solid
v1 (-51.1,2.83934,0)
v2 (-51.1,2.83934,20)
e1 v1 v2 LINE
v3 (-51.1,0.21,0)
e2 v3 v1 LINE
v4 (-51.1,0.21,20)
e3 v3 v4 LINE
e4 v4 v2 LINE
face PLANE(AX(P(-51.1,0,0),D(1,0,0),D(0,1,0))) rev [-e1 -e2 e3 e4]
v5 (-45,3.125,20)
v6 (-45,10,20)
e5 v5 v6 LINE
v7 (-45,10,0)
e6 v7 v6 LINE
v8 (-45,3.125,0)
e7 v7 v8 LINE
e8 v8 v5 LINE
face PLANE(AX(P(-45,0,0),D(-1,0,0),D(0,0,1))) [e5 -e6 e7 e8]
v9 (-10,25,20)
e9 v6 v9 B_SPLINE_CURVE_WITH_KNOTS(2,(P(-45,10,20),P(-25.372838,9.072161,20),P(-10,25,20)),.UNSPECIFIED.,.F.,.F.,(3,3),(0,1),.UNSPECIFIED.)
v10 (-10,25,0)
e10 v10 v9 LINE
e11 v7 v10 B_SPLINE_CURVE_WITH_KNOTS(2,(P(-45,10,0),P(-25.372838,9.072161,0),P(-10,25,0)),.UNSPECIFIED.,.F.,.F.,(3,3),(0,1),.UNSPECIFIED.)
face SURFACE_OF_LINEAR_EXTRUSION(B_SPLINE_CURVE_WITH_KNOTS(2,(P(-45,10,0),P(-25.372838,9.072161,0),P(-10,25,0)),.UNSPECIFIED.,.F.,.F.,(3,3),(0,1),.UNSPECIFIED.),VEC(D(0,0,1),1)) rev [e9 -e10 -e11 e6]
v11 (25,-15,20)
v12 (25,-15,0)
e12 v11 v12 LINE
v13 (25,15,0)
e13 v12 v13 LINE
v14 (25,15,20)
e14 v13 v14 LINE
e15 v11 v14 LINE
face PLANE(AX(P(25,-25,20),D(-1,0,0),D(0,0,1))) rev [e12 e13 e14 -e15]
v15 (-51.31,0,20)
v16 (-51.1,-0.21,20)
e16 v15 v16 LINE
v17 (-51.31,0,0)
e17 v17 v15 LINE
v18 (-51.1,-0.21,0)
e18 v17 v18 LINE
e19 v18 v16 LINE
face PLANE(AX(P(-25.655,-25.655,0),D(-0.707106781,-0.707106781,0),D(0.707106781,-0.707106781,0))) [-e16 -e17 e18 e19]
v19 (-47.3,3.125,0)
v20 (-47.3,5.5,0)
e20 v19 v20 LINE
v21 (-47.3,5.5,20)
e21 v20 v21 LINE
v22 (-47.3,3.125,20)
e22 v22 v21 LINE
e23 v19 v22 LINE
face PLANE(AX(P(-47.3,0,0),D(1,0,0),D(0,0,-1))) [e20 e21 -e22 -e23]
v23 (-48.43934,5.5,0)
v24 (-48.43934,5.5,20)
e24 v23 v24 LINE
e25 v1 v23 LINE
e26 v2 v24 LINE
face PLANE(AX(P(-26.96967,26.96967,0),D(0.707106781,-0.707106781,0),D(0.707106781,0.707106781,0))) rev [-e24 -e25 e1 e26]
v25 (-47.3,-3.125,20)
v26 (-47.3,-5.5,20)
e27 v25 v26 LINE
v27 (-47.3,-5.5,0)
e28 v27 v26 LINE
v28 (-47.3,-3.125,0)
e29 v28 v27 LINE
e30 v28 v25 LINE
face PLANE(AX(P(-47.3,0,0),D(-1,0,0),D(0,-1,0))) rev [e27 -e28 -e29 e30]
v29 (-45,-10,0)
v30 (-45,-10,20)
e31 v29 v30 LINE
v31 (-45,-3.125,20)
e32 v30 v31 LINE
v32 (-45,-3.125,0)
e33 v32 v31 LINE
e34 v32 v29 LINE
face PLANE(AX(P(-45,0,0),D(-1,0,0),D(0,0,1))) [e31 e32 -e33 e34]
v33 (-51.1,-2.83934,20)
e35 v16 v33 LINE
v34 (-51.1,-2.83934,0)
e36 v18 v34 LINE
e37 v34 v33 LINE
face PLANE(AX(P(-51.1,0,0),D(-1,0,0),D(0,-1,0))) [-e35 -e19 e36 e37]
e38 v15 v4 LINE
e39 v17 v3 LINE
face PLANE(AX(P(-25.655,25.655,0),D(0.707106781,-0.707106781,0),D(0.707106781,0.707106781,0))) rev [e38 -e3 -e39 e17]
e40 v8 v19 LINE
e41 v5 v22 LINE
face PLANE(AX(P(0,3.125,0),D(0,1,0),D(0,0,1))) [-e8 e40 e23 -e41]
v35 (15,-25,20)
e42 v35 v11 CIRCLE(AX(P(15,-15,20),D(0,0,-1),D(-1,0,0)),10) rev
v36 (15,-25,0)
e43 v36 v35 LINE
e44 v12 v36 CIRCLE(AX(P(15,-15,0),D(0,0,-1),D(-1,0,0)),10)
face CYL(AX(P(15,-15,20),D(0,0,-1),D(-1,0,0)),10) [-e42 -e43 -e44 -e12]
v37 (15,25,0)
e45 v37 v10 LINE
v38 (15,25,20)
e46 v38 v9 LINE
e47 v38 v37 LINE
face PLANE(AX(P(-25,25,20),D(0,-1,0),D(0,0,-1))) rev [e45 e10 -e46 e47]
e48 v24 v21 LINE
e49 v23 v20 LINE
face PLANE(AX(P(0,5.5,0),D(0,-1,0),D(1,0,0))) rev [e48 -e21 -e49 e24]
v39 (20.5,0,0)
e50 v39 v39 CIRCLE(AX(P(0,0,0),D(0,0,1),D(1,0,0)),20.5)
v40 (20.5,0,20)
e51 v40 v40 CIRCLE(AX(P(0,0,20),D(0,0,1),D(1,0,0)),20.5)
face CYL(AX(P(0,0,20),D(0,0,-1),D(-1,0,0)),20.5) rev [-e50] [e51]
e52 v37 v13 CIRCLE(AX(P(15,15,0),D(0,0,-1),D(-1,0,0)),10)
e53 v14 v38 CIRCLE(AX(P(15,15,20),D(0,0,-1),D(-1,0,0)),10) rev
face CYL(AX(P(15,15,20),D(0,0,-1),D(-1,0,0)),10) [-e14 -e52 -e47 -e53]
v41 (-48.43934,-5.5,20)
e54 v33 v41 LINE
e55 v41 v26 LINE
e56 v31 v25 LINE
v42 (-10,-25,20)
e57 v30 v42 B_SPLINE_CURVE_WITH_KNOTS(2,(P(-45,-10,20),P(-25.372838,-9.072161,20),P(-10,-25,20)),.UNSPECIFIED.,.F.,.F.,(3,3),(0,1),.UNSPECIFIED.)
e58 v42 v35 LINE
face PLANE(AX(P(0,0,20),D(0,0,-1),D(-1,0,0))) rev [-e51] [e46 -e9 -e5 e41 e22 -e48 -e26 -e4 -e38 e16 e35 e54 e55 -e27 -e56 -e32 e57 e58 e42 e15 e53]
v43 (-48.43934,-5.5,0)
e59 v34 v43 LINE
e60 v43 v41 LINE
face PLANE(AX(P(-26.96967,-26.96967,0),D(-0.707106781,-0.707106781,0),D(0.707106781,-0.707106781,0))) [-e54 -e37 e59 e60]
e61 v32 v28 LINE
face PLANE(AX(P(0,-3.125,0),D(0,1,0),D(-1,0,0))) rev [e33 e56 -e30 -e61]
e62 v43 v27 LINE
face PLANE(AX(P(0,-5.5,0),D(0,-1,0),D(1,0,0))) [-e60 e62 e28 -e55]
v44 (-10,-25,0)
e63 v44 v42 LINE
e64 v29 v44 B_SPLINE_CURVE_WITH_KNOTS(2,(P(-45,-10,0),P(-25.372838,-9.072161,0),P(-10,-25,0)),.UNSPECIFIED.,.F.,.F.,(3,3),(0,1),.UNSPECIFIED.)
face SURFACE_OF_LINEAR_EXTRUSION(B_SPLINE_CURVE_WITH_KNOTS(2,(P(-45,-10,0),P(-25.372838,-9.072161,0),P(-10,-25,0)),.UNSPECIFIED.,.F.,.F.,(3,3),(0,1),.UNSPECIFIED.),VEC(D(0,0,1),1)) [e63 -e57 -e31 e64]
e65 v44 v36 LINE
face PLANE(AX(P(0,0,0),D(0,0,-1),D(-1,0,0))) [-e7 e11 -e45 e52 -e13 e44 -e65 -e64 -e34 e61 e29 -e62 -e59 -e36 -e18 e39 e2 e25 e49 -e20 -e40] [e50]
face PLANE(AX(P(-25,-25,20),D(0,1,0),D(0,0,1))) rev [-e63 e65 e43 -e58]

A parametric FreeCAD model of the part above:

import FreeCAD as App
import Part
import Sketcher


def edges_at(feature, points):
    """Names of the edges that pass closest to the given points."""
    edges = feature.Shape.Edges
    near = lambda p: min(range(len(edges)), key=lambda i: edges[i].distToShape(Part.Vertex(*p))[0])
    return sorted({f"Edge{near(p) + 1}" for p in points})

doc = App.newDocument("Part")
body = doc.addObject("PartDesign::Body", "Body")

# Sketch on XY plane
sketch1 = body.newObject("Sketcher::SketchObject", "Sketch")
sketch1.AttachmentSupport = (doc.getObject("XY_Plane"), [""])
sketch1.MapMode = "FlatFace"
sketch1.addGeometry([
    Part.LineSegment(App.Vector(-25, 25, 0), App.Vector(-25, -25, 0)),  # 0
    Part.LineSegment(App.Vector(-25, -25, 0), App.Vector(25, -25, 0)),  # 1
    Part.LineSegment(App.Vector(25, -25, 0), App.Vector(25, 25, 0)),  # 2
    Part.LineSegment(App.Vector(25, 25, 0), App.Vector(-25, 25, 0)),  # 3
    Part.Circle(App.Vector(0, 0, 0), App.Vector(0, 0, 1), 20.5),  # 4
], False)
sketch1.addConstraint([
    Sketcher.Constraint("Coincident", 0, 2, 1, 1),
    Sketcher.Constraint("Coincident", 1, 2, 2, 1),
    Sketcher.Constraint("Coincident", 2, 2, 3, 1),
    Sketcher.Constraint("Coincident", 3, 2, 0, 1),
    Sketcher.Constraint("Vertical", 0),
    Sketcher.Constraint("Horizontal", 1),
    Sketcher.Constraint("Vertical", 2),
    Sketcher.Constraint("Horizontal", 3),
    Sketcher.Constraint("Coincident", 4, 3, -1, 1),
    Sketcher.Constraint("Symmetric", 0, 2, 2, 2, -1, 1),
    Sketcher.Constraint("Equal", 3, 0),
    Sketcher.Constraint("Diameter", 4, 41.0),
    Sketcher.Constraint("DistanceX", 1, 1, 1, 2, 50.0),
])
pad1 = body.newObject("PartDesign::Pad", "Pad")
pad1.Profile = sketch1
pad1.Length = 20

# Sketch on YZ plane
sketch2 = body.newObject("Sketcher::SketchObject", "Sketch001")
sketch2.AttachmentSupport = (doc.getObject("YZ_Plane"), [""])
sketch2.MapMode = "FlatFace"
sketch2.AttachmentOffset = App.Placement(App.Vector(0, 0, -25), App.Rotation())
sketch2.addGeometry([
    Part.LineSegment(App.Vector(25, 0, 0), App.Vector(-25, 0, 0)),
    Part.LineSegment(App.Vector(-25, 0, 0), App.Vector(-25, 20, 0)),
    Part.LineSegment(App.Vector(-25, 20, 0), App.Vector(25, 20, 0)),
    Part.LineSegment(App.Vector(25, 20, 0), App.Vector(25, 0, 0)),
], False)
sketch2.addConstraint([
    Sketcher.Constraint("Coincident", 0, 2, 1, 1),
    Sketcher.Constraint("Coincident", 1, 2, 2, 1),
    Sketcher.Constraint("Coincident", 2, 2, 3, 1),
    Sketcher.Constraint("Coincident", 3, 2, 0, 1),
    Sketcher.Constraint("Horizontal", 0),
    Sketcher.Constraint("Vertical", 1),
    Sketcher.Constraint("Horizontal", 2),
    Sketcher.Constraint("Vertical", 3),
    Sketcher.Constraint("Symmetric", 0, 2, 3, 2, -1, 1),
    Sketcher.Constraint("DistanceX", 0, 2, 0, 1, 50.0),
    Sketcher.Constraint("DistanceY", 1, 1, 1, 2, 20.0),
])
pad2 = body.newObject("PartDesign::Pad", "Pad001")
pad2.Profile = sketch2
pad2.Length = 20
pad2.Reversed = True

# Sketch on XY plane
sketch3 = body.newObject("Sketcher::SketchObject", "Sketch002")
sketch3.AttachmentSupport = (doc.getObject("XY_Plane"), [""])
sketch3.MapMode = "FlatFace"
sketch3.AttachmentOffset = App.Placement(App.Vector(0, 0, 20), App.Rotation())
sketch3.addGeometry([
    Part.LineSegment(App.Vector(-45, 25, 0), App.Vector(-45, 10, 0)),  # 0
    Part.BSplineCurve([App.Vector(-45, 10, 0), App.Vector(-25.372838, 9.072161, 0), App.Vector(-10, 25, 0)], [3, 3], [0, 1], False, 2, [1, 1, 1], False),  # 1
    Part.LineSegment(App.Vector(-10, 25, 0), App.Vector(-45, 25, 0)),  # 2
    Part.BSplineCurve([App.Vector(-45, -10, 0), App.Vector(-25.372838, -9.072161, 0), App.Vector(-10, -25, 0)], [3, 3], [0, 1], False, 2, [1, 1, 1], False),  # 3
    Part.LineSegment(App.Vector(-45, -10, 0), App.Vector(-45, -25, 0)),  # 4
    Part.LineSegment(App.Vector(-45, -25, 0), App.Vector(-10, -25, 0)),  # 5
], False)
sketch3.addConstraint([
    Sketcher.Constraint("Block", 1),
    Sketcher.Constraint("Block", 3),
    Sketcher.Constraint("Coincident", 0, 2, 1, 1),
    Sketcher.Constraint("Coincident", 1, 2, 2, 1),
    Sketcher.Constraint("Coincident", 2, 2, 0, 1),
    Sketcher.Constraint("Coincident", 3, 1, 4, 1),
    Sketcher.Constraint("Coincident", 4, 2, 5, 1),
    Sketcher.Constraint("Coincident", 5, 2, 3, 2),
    Sketcher.Constraint("Vertical", 0),
    Sketcher.Constraint("Horizontal", 2),
    Sketcher.Constraint("Vertical", 4),
    Sketcher.Constraint("Horizontal", 5),
])
pocket1 = body.newObject("PartDesign::Pocket", "Pocket")
pocket1.Profile = sketch3
pocket1.Length = 20

# Sketch on XY plane
sketch4 = body.newObject("Sketcher::SketchObject", "Sketch003")
sketch4.AttachmentSupport = (doc.getObject("XY_Plane"), [""])
sketch4.MapMode = "FlatFace"
sketch4.AttachmentOffset = App.Placement(App.Vector(0, 0, 20), App.Rotation())
sketch4.addGeometry([
    Part.LineSegment(App.Vector(-45, -3.125, 0), App.Vector(-45, 3.125, 0)),  # 0
    Part.LineSegment(App.Vector(-45, 3.125, 0), App.Vector(-47.3, 3.125, 0)),  # 1
    Part.LineSegment(App.Vector(-47.3, 3.125, 0), App.Vector(-47.3, 5.5, 0)),  # 2
    Part.LineSegment(App.Vector(-47.3, 5.5, 0), App.Vector(-48.43934, 5.5, 0)),  # 3
    Part.LineSegment(App.Vector(-48.43934, 5.5, 0), App.Vector(-51.1, 2.83934, 0)),  # 4
    Part.LineSegment(App.Vector(-51.1, 2.83934, 0), App.Vector(-51.1, 0.21, 0)),  # 5
    Part.LineSegment(App.Vector(-51.1, 0.21, 0), App.Vector(-51.31, 0, 0)),  # 6
    Part.LineSegment(App.Vector(-51.31, 0, 0), App.Vector(-51.1, -0.21, 0)),  # 7
    Part.LineSegment(App.Vector(-51.1, -0.21, 0), App.Vector(-51.1, -2.83934, 0)),  # 8
    Part.LineSegment(App.Vector(-51.1, -2.83934, 0), App.Vector(-48.43934, -5.5, 0)),  # 9
    Part.LineSegment(App.Vector(-48.43934, -5.5, 0), App.Vector(-47.3, -5.5, 0)),  # 10
    Part.LineSegment(App.Vector(-47.3, -5.5, 0), App.Vector(-47.3, -3.125, 0)),  # 11
    Part.LineSegment(App.Vector(-47.3, -3.125, 0), App.Vector(-45, -3.125, 0)),  # 12
], False)
sketch4.addConstraint([
    Sketcher.Constraint("Coincident", 0, 2, 1, 1),
    Sketcher.Constraint("Coincident", 1, 2, 2, 1),
    Sketcher.Constraint("Coincident", 2, 2, 3, 1),
    Sketcher.Constraint("Coincident", 3, 2, 4, 1),
    Sketcher.Constraint("Coincident", 4, 2, 5, 1),
    Sketcher.Constraint("Coincident", 5, 2, 6, 1),
    Sketcher.Constraint("Coincident", 6, 2, 7, 1),
    Sketcher.Constraint("Coincident", 7, 2, 8, 1),
    Sketcher.Constraint("Coincident", 8, 2, 9, 1),
    Sketcher.Constraint("Coincident", 9, 2, 10, 1),
    Sketcher.Constraint("Coincident", 10, 2, 11, 1),
    Sketcher.Constraint("Coincident", 11, 2, 12, 1),
    Sketcher.Constraint("Coincident", 12, 2, 0, 1),
    Sketcher.Constraint("Vertical", 0),
    Sketcher.Constraint("Horizontal", 1),
    Sketcher.Constraint("Vertical", 2),
    Sketcher.Constraint("Horizontal", 3),
    Sketcher.Constraint("Vertical", 5),
    Sketcher.Constraint("Vertical", 8),
    Sketcher.Constraint("Horizontal", 10),
    Sketcher.Constraint("Vertical", 11),
    Sketcher.Constraint("Horizontal", 12),
    Sketcher.Constraint("Symmetric", 5, 2, 7, 2, -1),
    Sketcher.Constraint("Symmetric", 3, 2, 9, 2, -1),
    Sketcher.Constraint("Symmetric", 1, 2, 11, 2, -1),
    Sketcher.Constraint("PointOnObject", 6, 2, -1),
    Sketcher.Constraint("Parallel", 4, 6),
    Sketcher.Constraint("Perpendicular", 6, 7),
    Sketcher.Constraint("Parallel", 7, 9),
    Sketcher.Constraint("DistanceX", 1, 2, 1, 1, 2.3),
    Sketcher.Constraint("DistanceX", 0, 2, -1, 1, 45.0),
    Sketcher.Constraint("DistanceY", 0, 1, 0, 2, 6.25),
    Sketcher.Constraint("DistanceY", -1, 1, 2, 2, 5.5),
    Sketcher.Constraint("DistanceX", 4, 2, -1, 1, 51.1),
    Sketcher.Constraint("DistanceY", -1, 1, 5, 2, 0.21),
    Sketcher.Constraint("DistanceX", 3, 2, 3, 1, 1.13934),
])
pad3 = body.newObject("PartDesign::Pad", "Pad002")
pad3.Profile = sketch4
pad3.Length = 20
pad3.Reversed = True
doc.recompute()

fillet = body.newObject("PartDesign::Fillet", "Fillet")
fillet.Base = (pad3, edges_at(pad3, [(25, -25, 10), (25, 25, 10)]))
fillet.Radius = 10

doc.recompute()
